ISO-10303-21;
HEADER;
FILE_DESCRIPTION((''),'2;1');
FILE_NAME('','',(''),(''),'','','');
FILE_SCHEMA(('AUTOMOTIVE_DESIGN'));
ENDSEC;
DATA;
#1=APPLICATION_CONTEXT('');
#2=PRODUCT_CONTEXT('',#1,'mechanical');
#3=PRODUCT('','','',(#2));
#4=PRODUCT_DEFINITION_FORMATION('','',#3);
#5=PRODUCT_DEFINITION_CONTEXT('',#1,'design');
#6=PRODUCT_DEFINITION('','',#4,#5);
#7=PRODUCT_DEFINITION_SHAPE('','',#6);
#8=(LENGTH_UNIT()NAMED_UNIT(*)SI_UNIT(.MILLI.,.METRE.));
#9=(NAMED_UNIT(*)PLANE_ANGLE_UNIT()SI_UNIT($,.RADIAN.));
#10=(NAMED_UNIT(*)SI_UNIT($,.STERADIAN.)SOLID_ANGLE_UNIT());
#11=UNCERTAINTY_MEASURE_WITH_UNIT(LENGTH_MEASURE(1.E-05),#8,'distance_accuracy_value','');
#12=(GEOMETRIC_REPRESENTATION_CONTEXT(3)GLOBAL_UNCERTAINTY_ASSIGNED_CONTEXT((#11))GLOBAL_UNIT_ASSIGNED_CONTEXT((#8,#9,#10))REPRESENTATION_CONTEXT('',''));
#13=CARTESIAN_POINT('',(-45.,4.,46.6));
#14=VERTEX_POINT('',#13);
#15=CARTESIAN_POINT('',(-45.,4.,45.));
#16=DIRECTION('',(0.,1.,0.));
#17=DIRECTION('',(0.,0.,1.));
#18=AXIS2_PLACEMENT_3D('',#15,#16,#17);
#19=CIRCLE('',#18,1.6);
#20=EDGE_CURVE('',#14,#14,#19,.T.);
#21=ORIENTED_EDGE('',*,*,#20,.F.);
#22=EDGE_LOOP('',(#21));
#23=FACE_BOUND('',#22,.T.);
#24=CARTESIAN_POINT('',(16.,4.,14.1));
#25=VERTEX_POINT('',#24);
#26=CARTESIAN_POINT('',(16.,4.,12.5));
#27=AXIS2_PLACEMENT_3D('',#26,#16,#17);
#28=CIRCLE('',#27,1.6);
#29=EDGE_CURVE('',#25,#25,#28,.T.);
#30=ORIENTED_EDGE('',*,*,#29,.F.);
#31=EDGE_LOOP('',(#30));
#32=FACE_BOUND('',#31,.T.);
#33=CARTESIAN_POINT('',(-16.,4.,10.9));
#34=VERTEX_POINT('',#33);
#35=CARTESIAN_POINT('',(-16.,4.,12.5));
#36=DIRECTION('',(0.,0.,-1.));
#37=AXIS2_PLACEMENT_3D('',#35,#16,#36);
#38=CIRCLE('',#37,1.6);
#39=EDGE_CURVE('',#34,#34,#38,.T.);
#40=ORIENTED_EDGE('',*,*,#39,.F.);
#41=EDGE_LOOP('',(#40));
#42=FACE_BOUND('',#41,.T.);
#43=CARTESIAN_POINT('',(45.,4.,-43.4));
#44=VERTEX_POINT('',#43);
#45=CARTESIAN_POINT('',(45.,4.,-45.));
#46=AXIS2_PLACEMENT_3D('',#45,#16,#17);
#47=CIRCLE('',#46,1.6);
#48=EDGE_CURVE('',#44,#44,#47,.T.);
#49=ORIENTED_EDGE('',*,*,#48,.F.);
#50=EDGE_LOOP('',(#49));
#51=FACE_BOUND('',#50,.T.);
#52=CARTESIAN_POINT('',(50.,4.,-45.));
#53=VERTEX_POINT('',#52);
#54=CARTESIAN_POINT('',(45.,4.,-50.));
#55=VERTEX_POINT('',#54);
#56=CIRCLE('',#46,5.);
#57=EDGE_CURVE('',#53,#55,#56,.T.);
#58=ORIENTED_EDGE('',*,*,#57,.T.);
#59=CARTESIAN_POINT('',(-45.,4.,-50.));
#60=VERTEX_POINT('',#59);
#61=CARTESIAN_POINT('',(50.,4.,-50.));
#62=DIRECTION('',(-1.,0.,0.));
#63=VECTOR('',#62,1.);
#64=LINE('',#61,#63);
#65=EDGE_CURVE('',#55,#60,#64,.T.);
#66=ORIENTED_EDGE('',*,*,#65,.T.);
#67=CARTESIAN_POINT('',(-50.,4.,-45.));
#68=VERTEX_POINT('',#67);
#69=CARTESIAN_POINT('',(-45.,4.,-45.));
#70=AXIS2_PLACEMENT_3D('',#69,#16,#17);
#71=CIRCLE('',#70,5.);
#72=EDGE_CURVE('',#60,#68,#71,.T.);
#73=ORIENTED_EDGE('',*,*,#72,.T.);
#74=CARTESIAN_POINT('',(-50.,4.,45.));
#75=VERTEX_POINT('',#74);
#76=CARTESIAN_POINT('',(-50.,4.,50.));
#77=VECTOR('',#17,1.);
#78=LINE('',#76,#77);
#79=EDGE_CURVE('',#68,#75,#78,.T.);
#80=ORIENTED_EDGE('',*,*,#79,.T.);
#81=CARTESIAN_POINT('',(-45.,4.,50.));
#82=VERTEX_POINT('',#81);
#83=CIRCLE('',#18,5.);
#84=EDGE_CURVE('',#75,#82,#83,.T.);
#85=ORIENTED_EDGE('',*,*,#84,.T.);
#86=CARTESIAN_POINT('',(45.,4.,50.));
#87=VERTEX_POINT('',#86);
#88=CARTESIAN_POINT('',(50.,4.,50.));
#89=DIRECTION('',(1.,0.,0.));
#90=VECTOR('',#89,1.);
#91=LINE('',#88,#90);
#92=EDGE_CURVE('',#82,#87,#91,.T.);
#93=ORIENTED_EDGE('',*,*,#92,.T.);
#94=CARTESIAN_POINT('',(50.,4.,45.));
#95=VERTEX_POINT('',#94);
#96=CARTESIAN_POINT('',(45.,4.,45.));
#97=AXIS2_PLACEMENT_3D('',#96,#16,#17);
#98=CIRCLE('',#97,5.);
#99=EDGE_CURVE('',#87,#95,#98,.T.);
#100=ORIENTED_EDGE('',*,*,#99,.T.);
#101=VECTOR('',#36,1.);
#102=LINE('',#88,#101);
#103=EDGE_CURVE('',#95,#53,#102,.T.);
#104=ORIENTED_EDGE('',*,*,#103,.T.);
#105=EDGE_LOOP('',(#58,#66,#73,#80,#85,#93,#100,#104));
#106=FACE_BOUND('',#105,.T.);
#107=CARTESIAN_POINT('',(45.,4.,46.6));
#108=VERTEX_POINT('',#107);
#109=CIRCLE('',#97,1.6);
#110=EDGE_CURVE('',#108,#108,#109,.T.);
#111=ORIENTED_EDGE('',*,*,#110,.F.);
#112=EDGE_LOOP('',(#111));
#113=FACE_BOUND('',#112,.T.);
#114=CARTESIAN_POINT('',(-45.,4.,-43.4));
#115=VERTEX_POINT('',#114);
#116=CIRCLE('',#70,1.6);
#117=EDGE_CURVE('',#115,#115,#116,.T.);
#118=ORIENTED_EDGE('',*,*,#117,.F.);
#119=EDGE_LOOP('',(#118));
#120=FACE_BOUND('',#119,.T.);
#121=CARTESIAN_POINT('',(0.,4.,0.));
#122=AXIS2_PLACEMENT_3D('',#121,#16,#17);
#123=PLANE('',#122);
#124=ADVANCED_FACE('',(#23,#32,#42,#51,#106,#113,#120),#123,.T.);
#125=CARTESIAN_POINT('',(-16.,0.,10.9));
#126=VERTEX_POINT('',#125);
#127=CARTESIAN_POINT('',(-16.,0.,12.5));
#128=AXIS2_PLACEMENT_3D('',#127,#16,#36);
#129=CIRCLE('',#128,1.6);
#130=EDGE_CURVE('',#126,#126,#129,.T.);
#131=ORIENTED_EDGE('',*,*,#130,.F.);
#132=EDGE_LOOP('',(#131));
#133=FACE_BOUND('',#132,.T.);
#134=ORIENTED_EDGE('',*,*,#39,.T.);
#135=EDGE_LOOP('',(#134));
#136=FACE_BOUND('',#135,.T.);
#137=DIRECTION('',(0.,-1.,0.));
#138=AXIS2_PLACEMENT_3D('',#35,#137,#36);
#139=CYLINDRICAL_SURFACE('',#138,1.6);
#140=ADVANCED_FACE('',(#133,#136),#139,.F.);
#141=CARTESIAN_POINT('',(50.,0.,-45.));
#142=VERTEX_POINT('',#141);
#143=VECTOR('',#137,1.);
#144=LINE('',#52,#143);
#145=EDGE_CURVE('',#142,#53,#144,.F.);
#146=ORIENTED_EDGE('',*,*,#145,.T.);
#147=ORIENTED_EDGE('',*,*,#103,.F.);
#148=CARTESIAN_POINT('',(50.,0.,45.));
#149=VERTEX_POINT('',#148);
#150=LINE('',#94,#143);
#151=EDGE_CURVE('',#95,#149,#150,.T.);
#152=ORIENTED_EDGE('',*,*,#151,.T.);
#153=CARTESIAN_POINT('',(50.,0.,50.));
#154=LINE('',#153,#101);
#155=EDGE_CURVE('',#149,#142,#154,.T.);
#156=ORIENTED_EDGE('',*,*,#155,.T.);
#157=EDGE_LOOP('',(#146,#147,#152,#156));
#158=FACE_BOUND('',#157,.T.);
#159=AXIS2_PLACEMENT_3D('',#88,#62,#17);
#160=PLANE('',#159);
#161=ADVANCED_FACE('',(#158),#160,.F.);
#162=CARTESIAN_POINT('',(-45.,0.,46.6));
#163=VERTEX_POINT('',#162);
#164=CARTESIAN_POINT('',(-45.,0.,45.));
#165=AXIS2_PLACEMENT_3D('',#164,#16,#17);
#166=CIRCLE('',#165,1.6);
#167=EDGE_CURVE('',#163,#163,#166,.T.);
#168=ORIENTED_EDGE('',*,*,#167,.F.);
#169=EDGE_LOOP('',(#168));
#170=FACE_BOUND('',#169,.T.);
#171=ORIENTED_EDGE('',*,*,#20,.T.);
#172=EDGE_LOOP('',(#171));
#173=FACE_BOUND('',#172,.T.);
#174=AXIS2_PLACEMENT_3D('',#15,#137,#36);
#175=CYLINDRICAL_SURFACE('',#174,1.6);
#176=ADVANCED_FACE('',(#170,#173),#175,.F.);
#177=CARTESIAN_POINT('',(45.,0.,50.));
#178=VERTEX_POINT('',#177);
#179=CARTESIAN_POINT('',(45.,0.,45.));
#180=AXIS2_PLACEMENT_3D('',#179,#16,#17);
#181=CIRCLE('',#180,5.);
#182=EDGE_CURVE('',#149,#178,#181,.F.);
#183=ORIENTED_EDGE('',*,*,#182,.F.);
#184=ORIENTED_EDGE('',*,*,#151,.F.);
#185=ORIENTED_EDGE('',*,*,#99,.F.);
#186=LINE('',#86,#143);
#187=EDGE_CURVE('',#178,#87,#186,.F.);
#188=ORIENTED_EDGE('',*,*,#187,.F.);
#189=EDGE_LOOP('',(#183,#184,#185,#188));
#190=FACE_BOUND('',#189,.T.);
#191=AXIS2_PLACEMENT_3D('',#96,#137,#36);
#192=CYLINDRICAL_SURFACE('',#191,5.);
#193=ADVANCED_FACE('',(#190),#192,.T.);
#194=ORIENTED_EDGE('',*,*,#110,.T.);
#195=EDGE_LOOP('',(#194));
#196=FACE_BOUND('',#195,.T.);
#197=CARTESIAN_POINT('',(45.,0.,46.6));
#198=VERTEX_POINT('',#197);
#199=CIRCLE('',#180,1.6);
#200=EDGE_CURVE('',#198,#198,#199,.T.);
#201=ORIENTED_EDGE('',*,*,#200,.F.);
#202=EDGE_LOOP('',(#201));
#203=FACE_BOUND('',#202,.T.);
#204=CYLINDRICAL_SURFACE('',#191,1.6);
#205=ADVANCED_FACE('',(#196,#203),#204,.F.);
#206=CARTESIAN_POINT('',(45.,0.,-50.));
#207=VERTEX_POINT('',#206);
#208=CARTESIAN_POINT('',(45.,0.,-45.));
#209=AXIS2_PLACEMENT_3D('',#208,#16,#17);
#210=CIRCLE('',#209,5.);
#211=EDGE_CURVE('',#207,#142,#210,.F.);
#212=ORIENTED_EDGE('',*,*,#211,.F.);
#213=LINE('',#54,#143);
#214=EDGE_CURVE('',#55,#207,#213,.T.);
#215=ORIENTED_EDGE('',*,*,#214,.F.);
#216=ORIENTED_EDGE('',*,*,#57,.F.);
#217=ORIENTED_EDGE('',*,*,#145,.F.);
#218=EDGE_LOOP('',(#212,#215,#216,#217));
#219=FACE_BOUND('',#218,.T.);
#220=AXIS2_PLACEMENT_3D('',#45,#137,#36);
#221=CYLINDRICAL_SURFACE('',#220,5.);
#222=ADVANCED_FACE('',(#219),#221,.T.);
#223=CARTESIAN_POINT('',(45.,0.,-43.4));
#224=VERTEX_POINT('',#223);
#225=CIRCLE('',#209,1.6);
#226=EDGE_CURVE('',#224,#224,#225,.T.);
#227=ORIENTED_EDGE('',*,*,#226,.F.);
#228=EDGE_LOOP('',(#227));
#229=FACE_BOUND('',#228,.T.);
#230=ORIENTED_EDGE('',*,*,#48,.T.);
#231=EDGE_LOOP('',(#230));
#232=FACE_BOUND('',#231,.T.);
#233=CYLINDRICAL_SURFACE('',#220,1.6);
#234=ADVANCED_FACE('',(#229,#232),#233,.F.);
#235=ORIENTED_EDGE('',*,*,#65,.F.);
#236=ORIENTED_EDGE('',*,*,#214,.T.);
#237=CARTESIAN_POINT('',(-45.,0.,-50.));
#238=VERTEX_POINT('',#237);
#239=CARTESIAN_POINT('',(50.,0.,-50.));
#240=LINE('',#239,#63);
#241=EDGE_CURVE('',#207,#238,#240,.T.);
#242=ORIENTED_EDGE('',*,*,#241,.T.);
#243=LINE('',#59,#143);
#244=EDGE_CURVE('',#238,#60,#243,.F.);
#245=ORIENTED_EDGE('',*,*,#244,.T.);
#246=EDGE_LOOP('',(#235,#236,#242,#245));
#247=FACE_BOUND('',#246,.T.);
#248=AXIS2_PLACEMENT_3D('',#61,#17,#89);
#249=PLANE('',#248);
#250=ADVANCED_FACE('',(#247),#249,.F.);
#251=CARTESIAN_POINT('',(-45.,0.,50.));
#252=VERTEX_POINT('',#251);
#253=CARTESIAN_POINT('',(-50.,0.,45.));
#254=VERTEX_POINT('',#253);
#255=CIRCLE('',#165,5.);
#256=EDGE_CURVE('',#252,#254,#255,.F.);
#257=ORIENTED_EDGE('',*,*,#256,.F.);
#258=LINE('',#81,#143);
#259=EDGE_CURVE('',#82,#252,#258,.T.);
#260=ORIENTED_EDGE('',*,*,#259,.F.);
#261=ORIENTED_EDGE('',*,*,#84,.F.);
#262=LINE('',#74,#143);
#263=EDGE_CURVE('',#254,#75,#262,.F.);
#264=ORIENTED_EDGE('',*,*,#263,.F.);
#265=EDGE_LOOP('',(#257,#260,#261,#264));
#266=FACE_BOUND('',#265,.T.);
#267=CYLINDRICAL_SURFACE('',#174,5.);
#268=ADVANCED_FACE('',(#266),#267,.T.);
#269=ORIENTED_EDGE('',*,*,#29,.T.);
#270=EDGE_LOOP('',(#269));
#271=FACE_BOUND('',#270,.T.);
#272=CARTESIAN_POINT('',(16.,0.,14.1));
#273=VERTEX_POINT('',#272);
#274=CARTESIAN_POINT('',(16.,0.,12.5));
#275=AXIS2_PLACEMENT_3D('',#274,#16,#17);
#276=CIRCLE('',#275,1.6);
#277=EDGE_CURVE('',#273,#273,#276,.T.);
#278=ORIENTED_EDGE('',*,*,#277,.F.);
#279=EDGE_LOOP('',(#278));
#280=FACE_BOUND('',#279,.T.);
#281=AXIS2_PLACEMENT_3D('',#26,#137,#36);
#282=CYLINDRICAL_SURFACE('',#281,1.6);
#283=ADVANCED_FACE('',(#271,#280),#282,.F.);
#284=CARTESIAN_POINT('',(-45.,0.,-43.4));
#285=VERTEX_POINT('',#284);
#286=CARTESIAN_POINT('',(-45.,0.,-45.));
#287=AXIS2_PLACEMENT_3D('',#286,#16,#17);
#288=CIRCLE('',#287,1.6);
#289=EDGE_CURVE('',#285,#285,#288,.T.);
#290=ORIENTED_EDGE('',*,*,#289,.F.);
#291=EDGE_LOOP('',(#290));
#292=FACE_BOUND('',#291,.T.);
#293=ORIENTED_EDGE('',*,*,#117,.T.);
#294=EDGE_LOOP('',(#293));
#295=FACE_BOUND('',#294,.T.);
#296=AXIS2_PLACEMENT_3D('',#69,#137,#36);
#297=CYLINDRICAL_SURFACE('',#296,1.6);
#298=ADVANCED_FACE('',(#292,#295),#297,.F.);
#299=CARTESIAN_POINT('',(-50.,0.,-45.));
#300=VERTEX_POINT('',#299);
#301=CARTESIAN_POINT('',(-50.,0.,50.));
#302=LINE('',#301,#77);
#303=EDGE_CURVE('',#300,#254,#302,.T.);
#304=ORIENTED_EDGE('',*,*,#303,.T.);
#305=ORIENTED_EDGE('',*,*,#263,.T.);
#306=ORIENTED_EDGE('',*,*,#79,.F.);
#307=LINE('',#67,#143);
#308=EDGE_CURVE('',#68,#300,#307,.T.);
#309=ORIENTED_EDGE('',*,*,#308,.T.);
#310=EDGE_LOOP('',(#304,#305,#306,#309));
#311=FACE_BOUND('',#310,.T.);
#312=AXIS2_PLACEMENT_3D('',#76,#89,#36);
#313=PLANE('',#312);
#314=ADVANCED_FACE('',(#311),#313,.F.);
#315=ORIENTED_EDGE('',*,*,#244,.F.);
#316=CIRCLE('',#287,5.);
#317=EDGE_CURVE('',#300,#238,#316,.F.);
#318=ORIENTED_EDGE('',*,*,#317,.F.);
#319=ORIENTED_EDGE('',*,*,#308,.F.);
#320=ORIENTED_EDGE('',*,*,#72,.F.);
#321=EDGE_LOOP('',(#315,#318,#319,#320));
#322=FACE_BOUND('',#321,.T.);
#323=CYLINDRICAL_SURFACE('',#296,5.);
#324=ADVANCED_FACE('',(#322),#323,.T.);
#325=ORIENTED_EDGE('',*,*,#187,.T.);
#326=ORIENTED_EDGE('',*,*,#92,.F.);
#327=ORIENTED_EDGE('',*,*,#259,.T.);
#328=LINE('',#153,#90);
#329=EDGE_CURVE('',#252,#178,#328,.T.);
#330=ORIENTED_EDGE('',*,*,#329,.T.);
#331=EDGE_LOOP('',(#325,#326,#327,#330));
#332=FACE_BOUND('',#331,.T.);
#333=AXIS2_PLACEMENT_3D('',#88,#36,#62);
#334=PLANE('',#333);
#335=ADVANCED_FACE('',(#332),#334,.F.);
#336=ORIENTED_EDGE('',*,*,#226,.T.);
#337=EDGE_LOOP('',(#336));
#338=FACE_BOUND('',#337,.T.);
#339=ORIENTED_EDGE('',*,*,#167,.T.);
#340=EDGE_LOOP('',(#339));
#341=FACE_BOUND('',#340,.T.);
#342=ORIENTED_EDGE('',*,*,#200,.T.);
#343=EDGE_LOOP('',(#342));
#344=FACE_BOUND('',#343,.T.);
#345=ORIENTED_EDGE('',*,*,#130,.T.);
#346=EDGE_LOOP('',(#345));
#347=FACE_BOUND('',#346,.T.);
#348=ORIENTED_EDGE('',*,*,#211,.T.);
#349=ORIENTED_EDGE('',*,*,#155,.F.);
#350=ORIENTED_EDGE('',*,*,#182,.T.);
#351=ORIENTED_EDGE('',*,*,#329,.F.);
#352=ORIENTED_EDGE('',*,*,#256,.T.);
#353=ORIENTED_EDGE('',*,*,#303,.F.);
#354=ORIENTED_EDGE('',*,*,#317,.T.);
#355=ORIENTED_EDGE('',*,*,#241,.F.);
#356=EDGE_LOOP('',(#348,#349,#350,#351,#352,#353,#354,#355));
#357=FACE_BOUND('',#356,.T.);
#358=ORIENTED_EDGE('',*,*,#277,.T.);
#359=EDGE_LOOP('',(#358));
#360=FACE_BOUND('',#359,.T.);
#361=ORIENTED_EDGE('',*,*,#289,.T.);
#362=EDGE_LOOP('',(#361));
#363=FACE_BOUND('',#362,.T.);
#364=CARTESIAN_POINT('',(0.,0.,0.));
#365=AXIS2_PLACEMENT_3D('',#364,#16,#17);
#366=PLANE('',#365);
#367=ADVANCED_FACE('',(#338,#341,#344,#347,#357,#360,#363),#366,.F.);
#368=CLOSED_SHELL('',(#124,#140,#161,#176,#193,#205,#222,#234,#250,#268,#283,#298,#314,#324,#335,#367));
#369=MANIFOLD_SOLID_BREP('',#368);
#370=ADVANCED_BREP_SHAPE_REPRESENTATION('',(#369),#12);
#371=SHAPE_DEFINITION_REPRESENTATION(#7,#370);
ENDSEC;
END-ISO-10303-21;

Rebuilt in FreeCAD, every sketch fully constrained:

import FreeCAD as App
import Part
import Sketcher

V = App.Vector


def edges_at(feature, points):
    """Names of the edges that pass closest to the given points."""
    edges = feature.Shape.Edges
    near = lambda p: min(range(len(edges)), key=lambda i: edges[i].distToShape(Part.Vertex(*p))[0])
    return sorted({f"Edge{near(p) + 1}" for p in points})


def add_polygon(sketch, points):
    """Adds a closed chain of lines whose ends are joined by coincident constraints."""
    first, n = sketch.GeometryCount, len(points)
    for a, b in zip(points, points[1:] + points[:1]):
        sketch.addGeometry(Part.LineSegment(App.Vector(*a, 0), App.Vector(*b, 0)), False)
    for i in range(n):
        sketch.addConstraint(Sketcher.Constraint("Coincident", first + i, 2, first + (i + 1) % n, 1))

doc = App.newDocument("Part")
params = doc.addObject("Spreadsheet::Sheet", "Params")
for row, (alias, value) in enumerate([
    ("sketch1_diameter", "3.2 mm"),
    ("sketch1_width", "100 mm"),
    ("pad1_length", "4 mm"),
    ("fillet_radius", "5 mm"),
], start=1):
    params.set(f"A{row}", alias)
    params.set(f"B{row}", "=" + value)
    params.setAlias(f"B{row}", alias)

body = doc.addObject("PartDesign::Body", "Body")

# Sketch on XZ plane
sketch1 = body.newObject("Sketcher::SketchObject", "Sketch")
sketch1.AttachmentSupport = (doc.getObject("XZ_Plane"), [""])
sketch1.MapMode = "FlatFace"
add_polygon(sketch1, [(-50, -50), (-50, 50), (50, 50), (50, -50)])  # lines 0-3
sketch1.addGeometry(Part.Circle(V(-45, 45, 0), V(0, 0, 1), 1.6), False)  # 4
sketch1.addGeometry(Part.Circle(V(-16, 12.5, 0), V(0, 0, 1), 1.6), False)  # 5
sketch1.addGeometry(Part.Circle(V(45, 45, 0), V(0, 0, 1), 1.6), False)  # 6
sketch1.addGeometry(Part.Circle(V(16, 12.5, 0), V(0, 0, 1), 1.6), False)  # 7
sketch1.addGeometry(Part.Circle(V(-45, -45, 0), V(0, 0, 1), 1.6), False)  # 8
sketch1.addGeometry(Part.Circle(V(45, -45, 0), V(0, 0, 1), 1.6), False)  # 9
sketch1.addConstraint(Sketcher.Constraint("Vertical", 0))
sketch1.addConstraint(Sketcher.Constraint("Horizontal", 1))
sketch1.addConstraint(Sketcher.Constraint("Vertical", 2))
sketch1.addConstraint(Sketcher.Constraint("Horizontal", 3))
sketch1.addConstraint(Sketcher.Constraint("Equal", 4, 5))
sketch1.addConstraint(Sketcher.Constraint("Equal", 5, 6))
sketch1.addConstraint(Sketcher.Constraint("Equal", 6, 7))
sketch1.addConstraint(Sketcher.Constraint("Equal", 7, 8))
sketch1.addConstraint(Sketcher.Constraint("Equal", 8, 9))
sketch1.addConstraint(Sketcher.Constraint("Symmetric", 6, 3, 8, 3, -1, 1))
sketch1.addConstraint(Sketcher.Constraint("Symmetric", 4, 3, 9, 3, -1, 1))
sketch1.addConstraint(Sketcher.Constraint("Symmetric", 0, 2, 2, 2, -1, 1))
sketch1.addConstraint(Sketcher.Constraint("Symmetric", 4, 3, 6, 3, -2))
sketch1.addConstraint(Sketcher.Constraint("Symmetric", 5, 3, 7, 3, -2))
sketch1.addConstraint(Sketcher.Constraint("Equal", 3, 0))
sketch1.addConstraint(Sketcher.Constraint("Diameter", 4, 3.2))
sketch1.addConstraint(Sketcher.Constraint("DistanceX", 1, 1, 1, 2, 100.0))
sketch1.addConstraint(Sketcher.Constraint("DistanceX", 4, 3, -1, 1, 45.0))
sketch1.addConstraint(Sketcher.Constraint("DistanceY", -1, 1, 4, 3, 45.0))
sketch1.addConstraint(Sketcher.Constraint("DistanceX", 5, 3, -1, 1, 16.0))
sketch1.addConstraint(Sketcher.Constraint("DistanceY", -1, 1, 5, 3, 12.5))
sketch1.setExpression("Constraints[19]", "Params.sketch1_diameter")
sketch1.setExpression("Constraints[20]", "Params.sketch1_width")
pad1 = body.newObject("PartDesign::Pad", "Pad")
pad1.Profile = sketch1
pad1.setExpression("Length", "Params.pad1_length")
pad1.Reversed = True
doc.recompute()

fillet = body.newObject("PartDesign::Fillet", "Fillet")
fillet.Base = (pad1, edges_at(pad1, [
    (-50, 2, -50),
    (50, 2, -50),
    (50, 2, 50),
    (-50, 2, 50),
]))
fillet.setExpression("Radius", "Params.fillet_radius")

doc.recompute()
